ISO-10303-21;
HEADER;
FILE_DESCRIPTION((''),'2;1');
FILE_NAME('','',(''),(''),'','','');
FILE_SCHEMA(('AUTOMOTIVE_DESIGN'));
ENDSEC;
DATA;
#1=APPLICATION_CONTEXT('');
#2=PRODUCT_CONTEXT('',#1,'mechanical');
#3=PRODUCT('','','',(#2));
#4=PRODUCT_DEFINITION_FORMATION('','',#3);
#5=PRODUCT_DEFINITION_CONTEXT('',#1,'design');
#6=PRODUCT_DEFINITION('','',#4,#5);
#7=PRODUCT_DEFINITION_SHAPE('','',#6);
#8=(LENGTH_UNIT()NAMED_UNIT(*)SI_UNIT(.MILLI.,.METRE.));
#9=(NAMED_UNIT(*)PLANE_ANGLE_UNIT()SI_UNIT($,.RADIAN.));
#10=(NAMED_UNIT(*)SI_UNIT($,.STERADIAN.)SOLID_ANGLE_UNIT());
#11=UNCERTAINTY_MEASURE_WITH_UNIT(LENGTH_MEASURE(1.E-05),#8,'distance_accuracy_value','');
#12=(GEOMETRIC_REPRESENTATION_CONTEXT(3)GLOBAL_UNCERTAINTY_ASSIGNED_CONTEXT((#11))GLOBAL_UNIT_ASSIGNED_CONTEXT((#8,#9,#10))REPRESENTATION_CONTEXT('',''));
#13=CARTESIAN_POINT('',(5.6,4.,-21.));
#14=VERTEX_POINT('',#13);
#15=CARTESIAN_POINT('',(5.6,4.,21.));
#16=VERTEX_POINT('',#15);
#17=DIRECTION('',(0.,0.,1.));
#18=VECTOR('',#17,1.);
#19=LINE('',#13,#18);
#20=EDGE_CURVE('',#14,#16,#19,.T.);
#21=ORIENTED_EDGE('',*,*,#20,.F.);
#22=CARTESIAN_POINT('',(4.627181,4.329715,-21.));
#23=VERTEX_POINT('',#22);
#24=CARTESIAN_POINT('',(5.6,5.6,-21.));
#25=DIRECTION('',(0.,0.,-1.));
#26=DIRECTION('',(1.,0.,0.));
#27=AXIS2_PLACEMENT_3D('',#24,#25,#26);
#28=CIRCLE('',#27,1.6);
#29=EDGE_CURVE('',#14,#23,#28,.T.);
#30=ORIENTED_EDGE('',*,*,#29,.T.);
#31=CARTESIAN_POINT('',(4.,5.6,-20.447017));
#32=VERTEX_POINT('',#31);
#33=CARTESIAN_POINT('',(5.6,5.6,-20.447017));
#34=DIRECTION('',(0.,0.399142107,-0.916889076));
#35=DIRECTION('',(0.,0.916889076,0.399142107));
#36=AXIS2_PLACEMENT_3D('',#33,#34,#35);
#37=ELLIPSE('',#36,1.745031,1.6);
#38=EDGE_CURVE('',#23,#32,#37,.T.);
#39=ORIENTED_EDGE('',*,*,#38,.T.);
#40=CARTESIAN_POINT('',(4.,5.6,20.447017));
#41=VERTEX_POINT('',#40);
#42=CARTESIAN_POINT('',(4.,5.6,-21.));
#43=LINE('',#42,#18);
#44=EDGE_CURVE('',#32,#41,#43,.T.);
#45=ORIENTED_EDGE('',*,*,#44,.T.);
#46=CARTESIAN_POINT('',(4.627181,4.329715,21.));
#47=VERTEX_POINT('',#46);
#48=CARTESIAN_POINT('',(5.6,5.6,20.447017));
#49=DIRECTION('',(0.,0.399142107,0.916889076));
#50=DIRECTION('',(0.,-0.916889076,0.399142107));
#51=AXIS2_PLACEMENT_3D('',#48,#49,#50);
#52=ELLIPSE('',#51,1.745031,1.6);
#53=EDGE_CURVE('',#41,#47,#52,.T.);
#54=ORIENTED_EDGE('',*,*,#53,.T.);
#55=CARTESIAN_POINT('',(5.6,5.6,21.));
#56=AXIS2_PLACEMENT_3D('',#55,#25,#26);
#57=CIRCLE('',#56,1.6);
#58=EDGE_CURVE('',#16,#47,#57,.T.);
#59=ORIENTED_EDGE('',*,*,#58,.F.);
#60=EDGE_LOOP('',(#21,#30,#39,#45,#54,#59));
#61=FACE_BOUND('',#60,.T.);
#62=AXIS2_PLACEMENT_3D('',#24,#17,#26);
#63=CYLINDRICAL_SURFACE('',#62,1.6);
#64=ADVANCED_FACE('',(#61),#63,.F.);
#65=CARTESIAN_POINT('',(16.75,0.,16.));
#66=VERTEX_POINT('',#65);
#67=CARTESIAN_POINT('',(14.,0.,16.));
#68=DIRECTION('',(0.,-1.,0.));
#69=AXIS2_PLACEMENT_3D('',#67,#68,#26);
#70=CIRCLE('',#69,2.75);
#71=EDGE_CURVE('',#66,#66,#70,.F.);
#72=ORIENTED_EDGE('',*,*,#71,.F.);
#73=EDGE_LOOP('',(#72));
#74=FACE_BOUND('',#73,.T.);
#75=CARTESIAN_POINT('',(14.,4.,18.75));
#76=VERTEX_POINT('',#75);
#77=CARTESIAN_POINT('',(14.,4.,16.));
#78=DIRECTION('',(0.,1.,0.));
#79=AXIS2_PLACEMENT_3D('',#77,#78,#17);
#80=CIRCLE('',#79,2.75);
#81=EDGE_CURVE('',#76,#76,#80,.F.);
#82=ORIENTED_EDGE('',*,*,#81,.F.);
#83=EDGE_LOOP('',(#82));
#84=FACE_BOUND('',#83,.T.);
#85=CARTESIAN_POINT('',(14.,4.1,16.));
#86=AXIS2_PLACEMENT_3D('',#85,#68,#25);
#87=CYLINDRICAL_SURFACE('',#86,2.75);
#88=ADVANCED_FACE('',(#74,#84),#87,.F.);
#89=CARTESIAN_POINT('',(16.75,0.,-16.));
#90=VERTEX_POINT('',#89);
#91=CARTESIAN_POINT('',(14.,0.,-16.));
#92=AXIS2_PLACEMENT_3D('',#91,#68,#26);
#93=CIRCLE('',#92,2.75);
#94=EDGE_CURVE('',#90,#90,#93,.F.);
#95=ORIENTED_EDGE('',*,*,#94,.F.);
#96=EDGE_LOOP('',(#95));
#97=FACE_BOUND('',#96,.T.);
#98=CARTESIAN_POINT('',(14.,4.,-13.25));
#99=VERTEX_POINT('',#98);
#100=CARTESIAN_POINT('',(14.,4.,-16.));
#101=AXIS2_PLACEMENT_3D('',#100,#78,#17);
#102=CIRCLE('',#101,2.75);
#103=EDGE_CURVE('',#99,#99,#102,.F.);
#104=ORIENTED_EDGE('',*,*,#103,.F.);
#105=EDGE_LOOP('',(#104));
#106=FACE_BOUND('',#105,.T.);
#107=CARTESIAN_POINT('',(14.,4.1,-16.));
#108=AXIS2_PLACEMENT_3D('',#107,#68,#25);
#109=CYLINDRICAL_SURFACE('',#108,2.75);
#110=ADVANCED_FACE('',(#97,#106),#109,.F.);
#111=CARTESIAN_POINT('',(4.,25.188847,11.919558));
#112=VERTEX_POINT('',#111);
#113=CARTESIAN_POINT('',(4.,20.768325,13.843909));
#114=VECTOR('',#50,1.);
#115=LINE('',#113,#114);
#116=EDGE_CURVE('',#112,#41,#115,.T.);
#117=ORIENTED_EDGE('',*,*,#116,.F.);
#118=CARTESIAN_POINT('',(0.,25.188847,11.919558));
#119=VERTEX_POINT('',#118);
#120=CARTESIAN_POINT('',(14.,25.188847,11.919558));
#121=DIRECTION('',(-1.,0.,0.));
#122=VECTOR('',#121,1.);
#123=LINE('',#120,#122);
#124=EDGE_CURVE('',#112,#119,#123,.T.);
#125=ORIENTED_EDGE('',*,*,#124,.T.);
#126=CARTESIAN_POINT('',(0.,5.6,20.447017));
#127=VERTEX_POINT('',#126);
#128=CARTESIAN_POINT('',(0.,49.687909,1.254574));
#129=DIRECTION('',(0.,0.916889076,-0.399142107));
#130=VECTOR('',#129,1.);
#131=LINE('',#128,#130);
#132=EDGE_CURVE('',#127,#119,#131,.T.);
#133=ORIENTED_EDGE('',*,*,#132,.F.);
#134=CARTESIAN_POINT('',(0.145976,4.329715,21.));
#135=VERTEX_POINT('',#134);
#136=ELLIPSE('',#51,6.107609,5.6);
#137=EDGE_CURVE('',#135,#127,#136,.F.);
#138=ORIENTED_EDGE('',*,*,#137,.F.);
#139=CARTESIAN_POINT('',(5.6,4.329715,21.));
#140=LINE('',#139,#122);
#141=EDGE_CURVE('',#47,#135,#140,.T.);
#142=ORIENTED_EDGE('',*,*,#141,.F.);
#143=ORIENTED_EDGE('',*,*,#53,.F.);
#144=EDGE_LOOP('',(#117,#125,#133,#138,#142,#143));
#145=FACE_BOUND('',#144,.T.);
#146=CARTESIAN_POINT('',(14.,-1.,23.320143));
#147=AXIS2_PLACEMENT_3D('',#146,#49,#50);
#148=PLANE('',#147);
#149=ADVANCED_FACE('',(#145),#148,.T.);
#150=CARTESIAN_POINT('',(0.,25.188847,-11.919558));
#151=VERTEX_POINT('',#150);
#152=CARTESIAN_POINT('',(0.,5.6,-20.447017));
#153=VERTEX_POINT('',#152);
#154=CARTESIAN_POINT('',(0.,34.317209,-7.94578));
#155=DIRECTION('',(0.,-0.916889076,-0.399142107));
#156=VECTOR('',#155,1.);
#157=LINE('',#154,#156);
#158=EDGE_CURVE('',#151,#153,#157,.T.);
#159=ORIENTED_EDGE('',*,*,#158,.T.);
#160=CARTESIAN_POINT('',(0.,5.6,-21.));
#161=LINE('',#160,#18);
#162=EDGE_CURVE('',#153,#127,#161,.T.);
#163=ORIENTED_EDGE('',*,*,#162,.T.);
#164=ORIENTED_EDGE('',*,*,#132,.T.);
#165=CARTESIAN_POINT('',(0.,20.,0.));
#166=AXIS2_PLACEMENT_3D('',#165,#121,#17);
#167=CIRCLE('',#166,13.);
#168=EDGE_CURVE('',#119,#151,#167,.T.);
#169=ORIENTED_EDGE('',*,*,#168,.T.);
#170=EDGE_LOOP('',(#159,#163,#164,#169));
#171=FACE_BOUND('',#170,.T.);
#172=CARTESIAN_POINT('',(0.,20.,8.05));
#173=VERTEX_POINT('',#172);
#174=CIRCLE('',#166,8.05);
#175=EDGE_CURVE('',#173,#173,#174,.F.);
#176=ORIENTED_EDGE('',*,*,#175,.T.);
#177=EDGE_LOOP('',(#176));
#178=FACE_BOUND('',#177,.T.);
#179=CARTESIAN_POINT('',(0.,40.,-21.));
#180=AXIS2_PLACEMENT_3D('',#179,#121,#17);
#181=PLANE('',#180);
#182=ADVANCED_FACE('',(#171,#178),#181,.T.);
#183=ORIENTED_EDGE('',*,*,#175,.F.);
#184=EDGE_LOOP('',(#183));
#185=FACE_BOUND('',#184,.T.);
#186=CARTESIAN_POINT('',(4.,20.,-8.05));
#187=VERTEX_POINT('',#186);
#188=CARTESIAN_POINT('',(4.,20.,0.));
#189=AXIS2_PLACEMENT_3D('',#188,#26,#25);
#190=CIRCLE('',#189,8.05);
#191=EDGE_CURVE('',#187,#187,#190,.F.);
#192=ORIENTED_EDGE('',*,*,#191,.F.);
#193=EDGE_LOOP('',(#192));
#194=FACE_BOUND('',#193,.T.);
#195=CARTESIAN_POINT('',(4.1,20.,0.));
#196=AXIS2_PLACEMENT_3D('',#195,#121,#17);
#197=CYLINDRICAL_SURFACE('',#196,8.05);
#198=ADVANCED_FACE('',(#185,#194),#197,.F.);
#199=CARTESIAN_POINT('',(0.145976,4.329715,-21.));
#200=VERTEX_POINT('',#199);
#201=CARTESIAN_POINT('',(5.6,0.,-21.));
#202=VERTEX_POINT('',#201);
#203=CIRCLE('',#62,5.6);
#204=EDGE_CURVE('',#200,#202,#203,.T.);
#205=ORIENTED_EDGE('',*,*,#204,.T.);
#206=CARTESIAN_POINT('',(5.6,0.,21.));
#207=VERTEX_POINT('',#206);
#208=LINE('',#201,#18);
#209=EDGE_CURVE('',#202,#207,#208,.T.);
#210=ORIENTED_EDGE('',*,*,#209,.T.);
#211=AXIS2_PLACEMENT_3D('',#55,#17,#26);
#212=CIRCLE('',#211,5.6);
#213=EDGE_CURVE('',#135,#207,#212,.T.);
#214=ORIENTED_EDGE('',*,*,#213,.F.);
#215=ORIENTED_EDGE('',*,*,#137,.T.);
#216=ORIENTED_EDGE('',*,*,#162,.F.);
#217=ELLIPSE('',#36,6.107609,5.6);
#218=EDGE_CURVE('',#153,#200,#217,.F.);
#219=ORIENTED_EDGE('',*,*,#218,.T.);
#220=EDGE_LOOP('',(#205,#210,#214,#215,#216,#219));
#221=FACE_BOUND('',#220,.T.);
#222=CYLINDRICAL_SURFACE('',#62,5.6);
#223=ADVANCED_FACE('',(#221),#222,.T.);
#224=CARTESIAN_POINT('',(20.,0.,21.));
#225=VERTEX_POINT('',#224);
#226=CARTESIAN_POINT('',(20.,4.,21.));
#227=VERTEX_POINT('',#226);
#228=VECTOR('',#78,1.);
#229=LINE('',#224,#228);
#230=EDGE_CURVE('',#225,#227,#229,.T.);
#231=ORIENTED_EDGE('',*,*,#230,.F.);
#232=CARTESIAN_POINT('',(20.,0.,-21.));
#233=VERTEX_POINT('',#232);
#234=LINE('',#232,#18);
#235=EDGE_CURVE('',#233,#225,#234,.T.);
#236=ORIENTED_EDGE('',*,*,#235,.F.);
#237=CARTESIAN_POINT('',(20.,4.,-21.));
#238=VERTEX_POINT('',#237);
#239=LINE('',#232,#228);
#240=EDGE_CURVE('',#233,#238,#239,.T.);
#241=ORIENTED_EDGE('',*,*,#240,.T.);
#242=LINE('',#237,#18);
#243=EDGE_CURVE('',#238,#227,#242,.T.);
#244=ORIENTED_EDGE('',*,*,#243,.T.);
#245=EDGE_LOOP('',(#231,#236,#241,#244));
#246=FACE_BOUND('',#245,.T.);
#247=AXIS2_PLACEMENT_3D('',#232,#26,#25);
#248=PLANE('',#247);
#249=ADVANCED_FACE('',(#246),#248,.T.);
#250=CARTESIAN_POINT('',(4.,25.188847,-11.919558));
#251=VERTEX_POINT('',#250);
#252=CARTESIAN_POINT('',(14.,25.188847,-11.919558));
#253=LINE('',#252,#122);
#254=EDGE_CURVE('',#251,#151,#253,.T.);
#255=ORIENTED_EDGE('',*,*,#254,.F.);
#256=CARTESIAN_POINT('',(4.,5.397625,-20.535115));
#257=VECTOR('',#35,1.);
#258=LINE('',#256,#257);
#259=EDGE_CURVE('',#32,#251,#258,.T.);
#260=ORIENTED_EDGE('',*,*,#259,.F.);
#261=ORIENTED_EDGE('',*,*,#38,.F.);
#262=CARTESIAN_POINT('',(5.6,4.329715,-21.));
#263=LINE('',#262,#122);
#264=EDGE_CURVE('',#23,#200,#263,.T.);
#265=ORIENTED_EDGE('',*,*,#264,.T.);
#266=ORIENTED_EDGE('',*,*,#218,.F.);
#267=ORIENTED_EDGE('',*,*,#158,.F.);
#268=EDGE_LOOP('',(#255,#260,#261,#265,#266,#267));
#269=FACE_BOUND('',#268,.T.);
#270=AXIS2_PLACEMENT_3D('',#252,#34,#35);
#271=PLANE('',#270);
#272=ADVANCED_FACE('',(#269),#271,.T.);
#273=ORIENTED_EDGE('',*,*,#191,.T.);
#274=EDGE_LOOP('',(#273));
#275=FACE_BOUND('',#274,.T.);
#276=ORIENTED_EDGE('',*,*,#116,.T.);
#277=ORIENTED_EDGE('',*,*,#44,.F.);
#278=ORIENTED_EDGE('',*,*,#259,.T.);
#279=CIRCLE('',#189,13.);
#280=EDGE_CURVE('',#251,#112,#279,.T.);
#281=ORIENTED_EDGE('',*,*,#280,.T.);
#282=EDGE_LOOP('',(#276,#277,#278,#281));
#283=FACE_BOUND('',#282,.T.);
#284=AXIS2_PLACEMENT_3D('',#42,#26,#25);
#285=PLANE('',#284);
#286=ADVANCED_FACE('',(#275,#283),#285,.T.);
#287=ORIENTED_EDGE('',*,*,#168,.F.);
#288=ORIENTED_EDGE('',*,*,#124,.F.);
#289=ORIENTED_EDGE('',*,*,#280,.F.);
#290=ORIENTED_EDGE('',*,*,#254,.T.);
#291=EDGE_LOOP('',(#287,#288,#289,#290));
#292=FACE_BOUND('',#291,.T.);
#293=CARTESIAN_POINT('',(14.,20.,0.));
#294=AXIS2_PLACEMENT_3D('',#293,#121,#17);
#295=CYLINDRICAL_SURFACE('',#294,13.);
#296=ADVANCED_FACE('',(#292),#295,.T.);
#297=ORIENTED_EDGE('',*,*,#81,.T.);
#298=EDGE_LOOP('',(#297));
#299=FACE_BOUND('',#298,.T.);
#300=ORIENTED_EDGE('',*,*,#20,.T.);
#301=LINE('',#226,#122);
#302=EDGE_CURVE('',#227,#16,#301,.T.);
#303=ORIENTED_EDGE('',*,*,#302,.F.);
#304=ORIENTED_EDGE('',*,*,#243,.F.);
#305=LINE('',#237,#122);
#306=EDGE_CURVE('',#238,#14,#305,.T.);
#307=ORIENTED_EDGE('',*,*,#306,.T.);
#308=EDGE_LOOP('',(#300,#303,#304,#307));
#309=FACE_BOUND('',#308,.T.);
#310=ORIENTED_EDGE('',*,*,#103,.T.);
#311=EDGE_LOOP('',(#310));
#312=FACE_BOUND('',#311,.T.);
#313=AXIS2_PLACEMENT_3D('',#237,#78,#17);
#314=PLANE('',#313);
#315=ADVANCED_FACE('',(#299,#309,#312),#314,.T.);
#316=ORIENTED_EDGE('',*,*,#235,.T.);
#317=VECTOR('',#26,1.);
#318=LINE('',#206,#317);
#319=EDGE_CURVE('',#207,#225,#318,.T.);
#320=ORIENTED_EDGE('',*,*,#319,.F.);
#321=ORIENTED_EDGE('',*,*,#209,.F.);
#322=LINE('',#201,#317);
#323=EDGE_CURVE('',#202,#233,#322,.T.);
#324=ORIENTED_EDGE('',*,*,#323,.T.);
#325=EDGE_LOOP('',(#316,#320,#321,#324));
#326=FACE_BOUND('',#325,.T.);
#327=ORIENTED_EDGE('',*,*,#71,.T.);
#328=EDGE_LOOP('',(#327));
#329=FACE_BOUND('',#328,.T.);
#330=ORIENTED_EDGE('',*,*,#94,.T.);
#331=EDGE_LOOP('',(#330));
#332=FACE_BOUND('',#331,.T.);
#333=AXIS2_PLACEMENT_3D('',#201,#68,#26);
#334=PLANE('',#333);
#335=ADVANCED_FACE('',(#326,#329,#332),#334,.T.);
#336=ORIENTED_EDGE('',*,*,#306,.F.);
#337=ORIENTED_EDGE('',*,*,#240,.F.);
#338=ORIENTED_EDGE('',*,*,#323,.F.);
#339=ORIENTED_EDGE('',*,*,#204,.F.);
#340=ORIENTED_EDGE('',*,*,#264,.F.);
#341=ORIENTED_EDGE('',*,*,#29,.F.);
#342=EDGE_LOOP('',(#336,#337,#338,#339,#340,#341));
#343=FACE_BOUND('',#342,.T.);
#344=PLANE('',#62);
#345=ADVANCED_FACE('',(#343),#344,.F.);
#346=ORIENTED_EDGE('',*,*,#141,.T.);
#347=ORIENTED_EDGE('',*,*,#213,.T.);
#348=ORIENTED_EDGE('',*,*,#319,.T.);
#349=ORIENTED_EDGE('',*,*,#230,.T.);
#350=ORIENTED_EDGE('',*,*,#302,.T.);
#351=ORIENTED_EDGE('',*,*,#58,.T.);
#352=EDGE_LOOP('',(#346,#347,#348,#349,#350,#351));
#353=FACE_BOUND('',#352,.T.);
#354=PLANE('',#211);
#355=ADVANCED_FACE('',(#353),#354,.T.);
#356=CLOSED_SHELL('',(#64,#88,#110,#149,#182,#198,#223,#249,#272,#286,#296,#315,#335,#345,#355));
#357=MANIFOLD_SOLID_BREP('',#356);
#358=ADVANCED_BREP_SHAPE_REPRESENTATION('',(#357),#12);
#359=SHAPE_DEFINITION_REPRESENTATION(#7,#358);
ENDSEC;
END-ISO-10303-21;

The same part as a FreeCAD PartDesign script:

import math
import FreeCAD as App
import Part
import Sketcher
from FreeCAD import Vector
Q = App.Units.Quantity

doc = App.newDocument("Part")
body = doc.addObject("PartDesign::Body", "Body")

# Sketch on XY plane
sketch1 = body.newObject("Sketcher::SketchObject", "Sketch")
sketch1.AttachmentSupport = (doc.getObject("XY_Plane"), [""])
sketch1.MapMode = "FlatFace"
sketch1.addGeometry([
    Part.LineSegment(Vector(0, 40, 0), Vector(0, 5.6, 0)),  # 0
    Part.ArcOfCircle(Part.Circle(Vector(5.6, 5.6, 0), Vector(0, 0, 1), 5.6), math.radians(180), math.radians(270)),  # 1
    Part.LineSegment(Vector(5.6, 0, 0), Vector(20, 0, 0)),  # 2
    Part.LineSegment(Vector(20, 0, 0), Vector(20, 4, 0)),  # 3
    Part.LineSegment(Vector(20, 4, 0), Vector(5.6, 4, 0)),  # 4
    Part.ArcOfCircle(Part.Circle(Vector(5.6, 5.6, 0), Vector(0, 0, 1), 1.6), math.radians(180), math.radians(270)),  # 5
    Part.LineSegment(Vector(4, 5.6, 0), Vector(4, 40, 0)),  # 6
    Part.LineSegment(Vector(4, 40, 0), Vector(0, 40, 0)),  # 7
], False)
sketch1.addConstraint([
    Sketcher.Constraint("Tangent", 0, 2, 1, 1),
    Sketcher.Constraint("Tangent", 1, 2, 2, 1),
    Sketcher.Constraint("Coincident", 2, 2, 3, 1),
    Sketcher.Constraint("Coincident", 3, 2, 4, 1),
    Sketcher.Constraint("Tangent", 4, 2, 5, 2),
    Sketcher.Constraint("Tangent", 5, 1, 6, 1),
    Sketcher.Constraint("Coincident", 6, 2, 7, 1),
    Sketcher.Constraint("Coincident", 7, 2, 0, 1),
    Sketcher.Constraint("Vertical", 0),
    Sketcher.Constraint("Horizontal", 2),
    Sketcher.Constraint("Vertical", 3),
    Sketcher.Constraint("Horizontal", 4),
    Sketcher.Constraint("Vertical", 6),
    Sketcher.Constraint("Horizontal", 7),
    Sketcher.Constraint("Coincident", 5, 3, 1, 3),
    Sketcher.Constraint("PointOnObject", 0, 2, -2),
    Sketcher.Constraint("PointOnObject", 1, 2, -1),
    Sketcher.Constraint("Radius", 1, Q("5.6 mm")),
    Sketcher.Constraint("Radius", 5, Q("1.6 mm")),
    Sketcher.Constraint("DistanceX", 2, 1, 2, 2, Q("14.4 mm")),
    Sketcher.Constraint("DistanceY", 0, 2, 0, 1, Q("34.4 mm")),
])
pad1 = body.newObject("PartDesign::Pad", "Pad")
pad1.Profile = sketch1
pad1.Type = "TwoLengths"
pad1.Length = 21
pad1.Length2 = 21

# Sketch on YZ plane
sketch2 = body.newObject("Sketcher::SketchObject", "Sketch001")
sketch2.AttachmentSupport = (doc.getObject("YZ_Plane"), [""])
sketch2.MapMode = "FlatFace"
sketch2.addGeometry([
    Part.LineSegment(Vector(64, 63, 0), Vector(-1, 63, 0)),  # 0
    Part.LineSegment(Vector(-1, 63, 0), Vector(-1, 23, 0)),  # 1
    Part.LineSegment(Vector(-1, 23, 0), Vector(25, 12, 0)),  # 2
    Part.ArcOfCircle(Part.Circle(Vector(20, 0, 0), Vector(0, 0, 1), 13), math.radians(-66), math.radians(66)),  # 3
    Part.LineSegment(Vector(25, -12, 0), Vector(-1, -23, 0)),  # 4
    Part.LineSegment(Vector(-1, -23, 0), Vector(-1, -63, 0)),  # 5
    Part.LineSegment(Vector(-1, -63, 0), Vector(64, -63, 0)),  # 6
    Part.LineSegment(Vector(64, -63, 0), Vector(64, 63, 0)),  # 7
], False)
sketch2.addConstraint([
    Sketcher.Constraint("Coincident", 0, 2, 1, 1),
    Sketcher.Constraint("Coincident", 1, 2, 2, 1),
    Sketcher.Constraint("Tangent", 2, 2, 3, 2),
    Sketcher.Constraint("Tangent", 3, 1, 4, 1),
    Sketcher.Constraint("Coincident", 4, 2, 5, 1),
    Sketcher.Constraint("Coincident", 5, 2, 6, 1),
    Sketcher.Constraint("Coincident", 6, 2, 7, 1),
    Sketcher.Constraint("Coincident", 7, 2, 0, 1),
    Sketcher.Constraint("Horizontal", 0),
    Sketcher.Constraint("Vertical", 1),
    Sketcher.Constraint("Vertical", 5),
    Sketcher.Constraint("Horizontal", 6),
    Sketcher.Constraint("Vertical", 7),
    Sketcher.Constraint("Symmetric", 2, 2, 3, 1, -1),
    Sketcher.Constraint("Symmetric", 0, 2, 5, 2, -1),
    Sketcher.Constraint("Radius", 3, Q("13 mm")),
    Sketcher.Constraint("DistanceX", 0, 2, 0, 1, Q("65.1 mm")),
    Sketcher.Constraint("DistanceY", 7, 1, 7, 2, Q("126.2 mm")),
    Sketcher.Constraint("DistanceX", -1, 1, 3, 3, Q("20 mm")),
    Sketcher.Constraint("DistanceX", 0, 2, -1, 1, Q("1 mm")),
    Sketcher.Constraint("DistanceY", 3, 1, 1, 2, Q("35.239701 mm")),
])
pocket1 = body.newObject("PartDesign::Pocket", "Pocket")
pocket1.Profile = sketch2
pocket1.Length = 28
pocket1.Midplane = True

# Sketch on YZ plane
sketch3 = body.newObject("Sketcher::SketchObject", "Sketch002")
sketch3.AttachmentSupport = (doc.getObject("YZ_Plane"), [""])
sketch3.MapMode = "FlatFace"
sketch3.addGeometry(Part.Circle(Vector(20, 0, 0), Vector(0, 0, 1), 8), False)
sketch3.addConstraint([
    Sketcher.Constraint("PointOnObject", 0, 3, -1),
    Sketcher.Constraint("Diameter", 0, Q("16.1 mm")),
    Sketcher.Constraint("DistanceX", -1, 1, 0, 3, Q("20 mm")),
])
pocket2 = body.newObject("PartDesign::Pocket", "Pocket001")
pocket2.Profile = sketch3
pocket2.Length = 8.2
pocket2.Midplane = True

# Sketch on XZ plane
sketch4 = body.newObject("Sketcher::SketchObject", "Sketch003")
sketch4.AttachmentSupport = (doc.getObject("XZ_Plane"), [""])
sketch4.MapMode = "FlatFace"
sketch4.addGeometry(Part.Circle(Vector(14, -16, 0), Vector(0, 0, 1), 2.8), False)
sketch4.addConstraint([
    Sketcher.Constraint("Diameter", 0, Q("5.5 mm")),
    Sketcher.Constraint("DistanceX", -1, 1, 0, 3, Q("14 mm")),
    Sketcher.Constraint("DistanceY", 0, 3, -1, 1, Q("16 mm")),
])
pocket3 = body.newObject("PartDesign::Pocket", "Pocket002")
pocket3.Profile = sketch4
pocket3.Length = 8.2
pocket3.Midplane = True

# Sketch on XZ plane
sketch5 = body.newObject("Sketcher::SketchObject", "Sketch004")
sketch5.AttachmentSupport = (doc.getObject("XZ_Plane"), [""])
sketch5.MapMode = "FlatFace"
sketch5.addGeometry(Part.Circle(Vector(14, 16, 0), Vector(0, 0, 1), 2.8), False)
sketch5.addConstraint([
    Sketcher.Constraint("Diameter", 0, Q("5.5 mm")),
    Sketcher.Constraint("DistanceX", -1, 1, 0, 3, Q("14 mm")),
    Sketcher.Constraint("DistanceY", -1, 1, 0, 3, Q("16 mm")),
])
pocket4 = body.newObject("PartDesign::Pocket", "Pocket003")
pocket4.Profile = sketch5
pocket4.Length = 8.2
pocket4.Midplane = True

doc.recompute()
